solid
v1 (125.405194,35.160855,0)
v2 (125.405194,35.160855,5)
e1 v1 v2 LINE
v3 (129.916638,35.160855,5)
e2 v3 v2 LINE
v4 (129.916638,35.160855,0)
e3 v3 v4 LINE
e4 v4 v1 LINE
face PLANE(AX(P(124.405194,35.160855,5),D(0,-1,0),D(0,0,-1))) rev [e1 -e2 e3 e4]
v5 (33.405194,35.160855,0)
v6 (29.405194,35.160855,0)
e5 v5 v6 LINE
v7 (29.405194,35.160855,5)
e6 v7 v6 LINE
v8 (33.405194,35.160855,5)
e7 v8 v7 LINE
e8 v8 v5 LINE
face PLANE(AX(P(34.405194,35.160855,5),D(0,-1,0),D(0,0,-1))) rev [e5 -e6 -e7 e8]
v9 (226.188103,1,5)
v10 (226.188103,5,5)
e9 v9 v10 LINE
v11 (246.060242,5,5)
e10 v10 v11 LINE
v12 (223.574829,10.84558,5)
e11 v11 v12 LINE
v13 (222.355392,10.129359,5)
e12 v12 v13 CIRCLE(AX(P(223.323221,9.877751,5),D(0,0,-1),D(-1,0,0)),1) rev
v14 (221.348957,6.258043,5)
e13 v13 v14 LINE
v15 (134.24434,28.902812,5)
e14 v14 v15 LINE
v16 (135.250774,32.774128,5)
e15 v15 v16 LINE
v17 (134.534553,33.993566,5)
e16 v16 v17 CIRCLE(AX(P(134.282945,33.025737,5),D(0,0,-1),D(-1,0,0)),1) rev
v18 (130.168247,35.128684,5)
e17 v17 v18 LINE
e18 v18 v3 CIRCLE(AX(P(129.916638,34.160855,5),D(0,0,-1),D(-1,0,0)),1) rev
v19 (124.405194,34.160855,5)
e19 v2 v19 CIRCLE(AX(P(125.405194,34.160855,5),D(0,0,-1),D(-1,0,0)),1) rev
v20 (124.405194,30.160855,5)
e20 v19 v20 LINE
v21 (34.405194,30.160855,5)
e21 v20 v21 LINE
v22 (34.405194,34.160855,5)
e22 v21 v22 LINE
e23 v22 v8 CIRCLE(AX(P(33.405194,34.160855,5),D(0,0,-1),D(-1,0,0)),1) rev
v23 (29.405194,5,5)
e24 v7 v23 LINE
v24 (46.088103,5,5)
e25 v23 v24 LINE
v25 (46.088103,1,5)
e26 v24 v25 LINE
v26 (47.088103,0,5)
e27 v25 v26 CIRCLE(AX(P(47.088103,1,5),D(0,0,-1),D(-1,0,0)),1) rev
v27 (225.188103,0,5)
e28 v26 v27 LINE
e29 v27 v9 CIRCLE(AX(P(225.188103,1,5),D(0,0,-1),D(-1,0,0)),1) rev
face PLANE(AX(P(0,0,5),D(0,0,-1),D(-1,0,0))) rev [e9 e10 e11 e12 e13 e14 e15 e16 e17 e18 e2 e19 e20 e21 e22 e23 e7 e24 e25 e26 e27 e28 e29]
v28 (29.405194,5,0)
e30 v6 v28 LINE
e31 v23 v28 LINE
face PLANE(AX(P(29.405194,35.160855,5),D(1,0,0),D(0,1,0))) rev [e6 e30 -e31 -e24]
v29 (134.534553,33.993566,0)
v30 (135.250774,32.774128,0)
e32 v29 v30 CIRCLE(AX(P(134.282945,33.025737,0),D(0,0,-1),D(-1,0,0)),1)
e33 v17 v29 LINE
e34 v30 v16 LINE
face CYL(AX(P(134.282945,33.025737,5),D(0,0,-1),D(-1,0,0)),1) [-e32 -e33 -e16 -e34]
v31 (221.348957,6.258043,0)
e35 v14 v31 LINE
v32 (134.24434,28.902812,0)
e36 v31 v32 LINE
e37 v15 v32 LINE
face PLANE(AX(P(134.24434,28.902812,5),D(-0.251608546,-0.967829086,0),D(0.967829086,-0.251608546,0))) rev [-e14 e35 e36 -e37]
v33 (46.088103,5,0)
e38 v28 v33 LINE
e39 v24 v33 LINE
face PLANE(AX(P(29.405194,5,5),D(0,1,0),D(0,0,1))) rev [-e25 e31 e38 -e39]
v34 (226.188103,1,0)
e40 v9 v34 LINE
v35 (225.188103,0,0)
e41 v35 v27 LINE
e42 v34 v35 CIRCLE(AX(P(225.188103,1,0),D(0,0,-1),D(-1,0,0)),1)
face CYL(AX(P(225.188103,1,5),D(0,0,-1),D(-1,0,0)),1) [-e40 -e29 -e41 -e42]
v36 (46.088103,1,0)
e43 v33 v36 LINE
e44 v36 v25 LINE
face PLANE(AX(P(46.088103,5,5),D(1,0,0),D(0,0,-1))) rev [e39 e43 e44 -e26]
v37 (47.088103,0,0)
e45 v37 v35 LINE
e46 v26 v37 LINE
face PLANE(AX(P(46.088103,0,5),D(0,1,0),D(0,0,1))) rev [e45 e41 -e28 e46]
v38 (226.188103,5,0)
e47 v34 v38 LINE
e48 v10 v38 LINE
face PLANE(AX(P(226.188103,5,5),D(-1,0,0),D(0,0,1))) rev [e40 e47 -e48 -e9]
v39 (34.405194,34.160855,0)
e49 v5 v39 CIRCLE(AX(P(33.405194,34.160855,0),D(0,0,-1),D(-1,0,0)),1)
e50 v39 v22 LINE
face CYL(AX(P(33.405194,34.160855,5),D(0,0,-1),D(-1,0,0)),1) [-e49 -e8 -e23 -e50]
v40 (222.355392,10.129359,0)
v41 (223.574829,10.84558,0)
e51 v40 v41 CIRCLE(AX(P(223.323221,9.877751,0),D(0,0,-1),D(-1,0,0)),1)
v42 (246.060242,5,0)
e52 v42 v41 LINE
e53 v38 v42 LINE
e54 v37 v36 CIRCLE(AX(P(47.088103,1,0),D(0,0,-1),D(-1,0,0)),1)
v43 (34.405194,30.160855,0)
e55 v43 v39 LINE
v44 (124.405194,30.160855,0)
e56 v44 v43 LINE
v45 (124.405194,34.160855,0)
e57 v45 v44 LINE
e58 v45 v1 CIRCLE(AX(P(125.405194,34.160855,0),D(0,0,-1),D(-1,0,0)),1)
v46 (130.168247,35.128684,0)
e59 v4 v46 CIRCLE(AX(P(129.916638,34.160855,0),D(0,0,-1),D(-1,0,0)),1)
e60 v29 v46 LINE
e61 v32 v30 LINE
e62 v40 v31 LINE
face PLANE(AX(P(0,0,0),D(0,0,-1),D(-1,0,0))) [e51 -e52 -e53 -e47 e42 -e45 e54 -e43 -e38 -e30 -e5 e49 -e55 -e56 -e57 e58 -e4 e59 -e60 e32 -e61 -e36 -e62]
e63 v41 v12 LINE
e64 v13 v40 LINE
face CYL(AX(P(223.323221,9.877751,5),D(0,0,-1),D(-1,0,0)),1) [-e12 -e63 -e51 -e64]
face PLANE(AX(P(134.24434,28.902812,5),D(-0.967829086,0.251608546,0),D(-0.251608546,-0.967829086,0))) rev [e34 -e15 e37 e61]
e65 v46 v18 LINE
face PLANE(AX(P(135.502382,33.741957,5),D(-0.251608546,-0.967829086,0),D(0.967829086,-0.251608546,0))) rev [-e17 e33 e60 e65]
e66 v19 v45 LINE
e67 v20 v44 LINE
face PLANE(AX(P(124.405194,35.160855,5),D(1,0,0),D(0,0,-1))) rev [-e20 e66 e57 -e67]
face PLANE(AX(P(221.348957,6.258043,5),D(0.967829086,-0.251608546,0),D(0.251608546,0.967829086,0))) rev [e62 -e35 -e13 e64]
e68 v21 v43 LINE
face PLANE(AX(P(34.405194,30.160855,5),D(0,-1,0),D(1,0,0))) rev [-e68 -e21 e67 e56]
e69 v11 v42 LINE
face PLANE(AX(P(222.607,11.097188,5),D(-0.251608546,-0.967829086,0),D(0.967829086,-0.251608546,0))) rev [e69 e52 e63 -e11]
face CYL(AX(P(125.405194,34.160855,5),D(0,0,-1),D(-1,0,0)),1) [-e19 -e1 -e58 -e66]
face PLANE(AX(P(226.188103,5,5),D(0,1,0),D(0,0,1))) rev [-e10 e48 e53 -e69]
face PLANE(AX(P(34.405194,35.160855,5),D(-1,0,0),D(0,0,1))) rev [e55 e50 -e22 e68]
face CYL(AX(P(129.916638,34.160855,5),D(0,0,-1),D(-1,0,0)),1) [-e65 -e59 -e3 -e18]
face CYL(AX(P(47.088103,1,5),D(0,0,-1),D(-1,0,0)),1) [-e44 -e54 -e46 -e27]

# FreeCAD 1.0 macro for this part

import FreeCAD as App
import Part
import Sketcher
Q = App.Units.Quantity


def edges_at(feature, points):
    """Names of the edges that pass closest to the given points."""
    edges = feature.Shape.Edges
    near = lambda p: min(range(len(edges)), key=lambda i: edges[i].distToShape(Part.Vertex(*p))[0])
    return sorted({f"Edge{near(p) + 1}" for p in points})


def add_polygon(sketch, points):
    """Adds a closed chain of lines whose ends are joined by coincident constraints."""
    first, n = sketch.GeometryCount, len(points)
    for a, b in zip(points, points[1:] + points[:1]):
        sketch.addGeometry(Part.LineSegment(App.Vector(*a, 0), App.Vector(*b, 0)), False)
    for i in range(n):
        sketch.addConstraint(Sketcher.Constraint("Coincident", first + i, 2, first + (i + 1) % n, 1))

doc = App.newDocument("Part")
body = doc.addObject("PartDesign::Body", "Body")

sketch1 = body.newObject("Sketcher::SketchObject", "Sketch")
sketch1.AttachmentSupport = (doc.getObject("XY_Plane"), [""])
sketch1.MapMode = "FlatFace"
add_polygon(sketch1, [(29.4, 5), (46.1, 5), (46.1, 0), (226.2, 0), (226.2, 5), (246.1, 5), (222.6, 11.1), (221.3, 6.3), (134.2, 28.9), (135.5, 33.7), (130, 35.2), (124.4, 35.2), (124.4, 30.2), (34.4, 30.2), (34.4, 35.2), (29.4, 35.2)])
sketch1.addConstraint(Sketcher.Constraint("Horizontal", 0))
sketch1.addConstraint(Sketcher.Constraint("Vertical", 1))
sketch1.addConstraint(Sketcher.Constraint("Horizontal", 2))
sketch1.addConstraint(Sketcher.Constraint("Vertical", 3))
sketch1.addConstraint(Sketcher.Constraint("Horizontal", 4))
sketch1.addConstraint(Sketcher.Constraint("Horizontal", 10))
sketch1.addConstraint(Sketcher.Constraint("Vertical", 11))
sketch1.addConstraint(Sketcher.Constraint("Horizontal", 12))
sketch1.addConstraint(Sketcher.Constraint("Vertical", 13))
sketch1.addConstraint(Sketcher.Constraint("Horizontal", 14))
sketch1.addConstraint(Sketcher.Constraint("Vertical", 15))
sketch1.addConstraint(Sketcher.Constraint("PointOnObject", 1, 2, -1))
sketch1.addConstraint(Sketcher.Constraint("Perpendicular", 5, 6))
sketch1.addConstraint(Sketcher.Constraint("Perpendicular", 6, 7))
sketch1.addConstraint(Sketcher.Constraint("Perpendicular", 7, 8))
sketch1.addConstraint(Sketcher.Constraint("Perpendicular", 8, 9))
sketch1.addConstraint(Sketcher.Constraint("Horizontal", 0, 2, 3, 2))
sketch1.addConstraint(Sketcher.Constraint("Horizontal", 10, 2, 13, 2))
sketch1.addConstraint(Sketcher.Constraint("Equal", 14, 1))
sketch1.addConstraint(Sketcher.Constraint("Equal", 3, 11))
sketch1.addConstraint(Sketcher.Constraint("Equal", 6, 8))
sketch1.addConstraint(Sketcher.Constraint("DistanceX", 12, 2, 12, 1, Q("90 mm")))
sketch1.addConstraint(Sketcher.Constraint("DistanceX", 14, 2, 14, 1, Q("5 mm")))
sketch1.addConstraint(Sketcher.Constraint("Distance", 6, Q("5 mm")))
sketch1.addConstraint(Sketcher.Constraint("Distance", 7, Q("90 mm")))
sketch1.addConstraint(Sketcher.Constraint("DistanceX", 2, 1, 2, 2, Q("180.1 mm")))
sketch1.addConstraint(Sketcher.Constraint("DistanceX", -1, 1, 5, 2, Q("222.607 mm")))
sketch1.addConstraint(Sketcher.Constraint("DistanceX", 0, 1, 0, 2, Q("16.682909 mm")))
sketch1.addConstraint(Sketcher.Constraint("DistanceX", 4, 1, 4, 2, Q("19.872139 mm")))
sketch1.addConstraint(Sketcher.Constraint("DistanceX", -1, 1, 9, 2, Q("130.044499 mm")))
sketch1.addConstraint(Sketcher.Constraint("DistanceX", 10, 2, 10, 1, Q("5.639305 mm")))
sketch1.addConstraint(Sketcher.Constraint("DistanceY", 15, 2, 15, 1, Q("30.160855 mm")))
pad1 = body.newObject("PartDesign::Pad", "Pad")
pad1.Profile = sketch1
pad1.Length = 5
doc.recompute()

fillet = body.newObject("PartDesign::Fillet", "Fillet")
fillet.Base = (pad1, edges_at(pad1, [
    (130.044, 35.161, 2.5),
    (135.502, 33.742, 2.5),
    (222.607, 11.097, 2.5),
    (226.188, 0, 2.5),
    (46.088, 0, 2.5),
    (34.405, 35.161, 2.5),
    (124.405, 35.161, 2.5),
]))
fillet.Radius = 1

doc.recompute()
